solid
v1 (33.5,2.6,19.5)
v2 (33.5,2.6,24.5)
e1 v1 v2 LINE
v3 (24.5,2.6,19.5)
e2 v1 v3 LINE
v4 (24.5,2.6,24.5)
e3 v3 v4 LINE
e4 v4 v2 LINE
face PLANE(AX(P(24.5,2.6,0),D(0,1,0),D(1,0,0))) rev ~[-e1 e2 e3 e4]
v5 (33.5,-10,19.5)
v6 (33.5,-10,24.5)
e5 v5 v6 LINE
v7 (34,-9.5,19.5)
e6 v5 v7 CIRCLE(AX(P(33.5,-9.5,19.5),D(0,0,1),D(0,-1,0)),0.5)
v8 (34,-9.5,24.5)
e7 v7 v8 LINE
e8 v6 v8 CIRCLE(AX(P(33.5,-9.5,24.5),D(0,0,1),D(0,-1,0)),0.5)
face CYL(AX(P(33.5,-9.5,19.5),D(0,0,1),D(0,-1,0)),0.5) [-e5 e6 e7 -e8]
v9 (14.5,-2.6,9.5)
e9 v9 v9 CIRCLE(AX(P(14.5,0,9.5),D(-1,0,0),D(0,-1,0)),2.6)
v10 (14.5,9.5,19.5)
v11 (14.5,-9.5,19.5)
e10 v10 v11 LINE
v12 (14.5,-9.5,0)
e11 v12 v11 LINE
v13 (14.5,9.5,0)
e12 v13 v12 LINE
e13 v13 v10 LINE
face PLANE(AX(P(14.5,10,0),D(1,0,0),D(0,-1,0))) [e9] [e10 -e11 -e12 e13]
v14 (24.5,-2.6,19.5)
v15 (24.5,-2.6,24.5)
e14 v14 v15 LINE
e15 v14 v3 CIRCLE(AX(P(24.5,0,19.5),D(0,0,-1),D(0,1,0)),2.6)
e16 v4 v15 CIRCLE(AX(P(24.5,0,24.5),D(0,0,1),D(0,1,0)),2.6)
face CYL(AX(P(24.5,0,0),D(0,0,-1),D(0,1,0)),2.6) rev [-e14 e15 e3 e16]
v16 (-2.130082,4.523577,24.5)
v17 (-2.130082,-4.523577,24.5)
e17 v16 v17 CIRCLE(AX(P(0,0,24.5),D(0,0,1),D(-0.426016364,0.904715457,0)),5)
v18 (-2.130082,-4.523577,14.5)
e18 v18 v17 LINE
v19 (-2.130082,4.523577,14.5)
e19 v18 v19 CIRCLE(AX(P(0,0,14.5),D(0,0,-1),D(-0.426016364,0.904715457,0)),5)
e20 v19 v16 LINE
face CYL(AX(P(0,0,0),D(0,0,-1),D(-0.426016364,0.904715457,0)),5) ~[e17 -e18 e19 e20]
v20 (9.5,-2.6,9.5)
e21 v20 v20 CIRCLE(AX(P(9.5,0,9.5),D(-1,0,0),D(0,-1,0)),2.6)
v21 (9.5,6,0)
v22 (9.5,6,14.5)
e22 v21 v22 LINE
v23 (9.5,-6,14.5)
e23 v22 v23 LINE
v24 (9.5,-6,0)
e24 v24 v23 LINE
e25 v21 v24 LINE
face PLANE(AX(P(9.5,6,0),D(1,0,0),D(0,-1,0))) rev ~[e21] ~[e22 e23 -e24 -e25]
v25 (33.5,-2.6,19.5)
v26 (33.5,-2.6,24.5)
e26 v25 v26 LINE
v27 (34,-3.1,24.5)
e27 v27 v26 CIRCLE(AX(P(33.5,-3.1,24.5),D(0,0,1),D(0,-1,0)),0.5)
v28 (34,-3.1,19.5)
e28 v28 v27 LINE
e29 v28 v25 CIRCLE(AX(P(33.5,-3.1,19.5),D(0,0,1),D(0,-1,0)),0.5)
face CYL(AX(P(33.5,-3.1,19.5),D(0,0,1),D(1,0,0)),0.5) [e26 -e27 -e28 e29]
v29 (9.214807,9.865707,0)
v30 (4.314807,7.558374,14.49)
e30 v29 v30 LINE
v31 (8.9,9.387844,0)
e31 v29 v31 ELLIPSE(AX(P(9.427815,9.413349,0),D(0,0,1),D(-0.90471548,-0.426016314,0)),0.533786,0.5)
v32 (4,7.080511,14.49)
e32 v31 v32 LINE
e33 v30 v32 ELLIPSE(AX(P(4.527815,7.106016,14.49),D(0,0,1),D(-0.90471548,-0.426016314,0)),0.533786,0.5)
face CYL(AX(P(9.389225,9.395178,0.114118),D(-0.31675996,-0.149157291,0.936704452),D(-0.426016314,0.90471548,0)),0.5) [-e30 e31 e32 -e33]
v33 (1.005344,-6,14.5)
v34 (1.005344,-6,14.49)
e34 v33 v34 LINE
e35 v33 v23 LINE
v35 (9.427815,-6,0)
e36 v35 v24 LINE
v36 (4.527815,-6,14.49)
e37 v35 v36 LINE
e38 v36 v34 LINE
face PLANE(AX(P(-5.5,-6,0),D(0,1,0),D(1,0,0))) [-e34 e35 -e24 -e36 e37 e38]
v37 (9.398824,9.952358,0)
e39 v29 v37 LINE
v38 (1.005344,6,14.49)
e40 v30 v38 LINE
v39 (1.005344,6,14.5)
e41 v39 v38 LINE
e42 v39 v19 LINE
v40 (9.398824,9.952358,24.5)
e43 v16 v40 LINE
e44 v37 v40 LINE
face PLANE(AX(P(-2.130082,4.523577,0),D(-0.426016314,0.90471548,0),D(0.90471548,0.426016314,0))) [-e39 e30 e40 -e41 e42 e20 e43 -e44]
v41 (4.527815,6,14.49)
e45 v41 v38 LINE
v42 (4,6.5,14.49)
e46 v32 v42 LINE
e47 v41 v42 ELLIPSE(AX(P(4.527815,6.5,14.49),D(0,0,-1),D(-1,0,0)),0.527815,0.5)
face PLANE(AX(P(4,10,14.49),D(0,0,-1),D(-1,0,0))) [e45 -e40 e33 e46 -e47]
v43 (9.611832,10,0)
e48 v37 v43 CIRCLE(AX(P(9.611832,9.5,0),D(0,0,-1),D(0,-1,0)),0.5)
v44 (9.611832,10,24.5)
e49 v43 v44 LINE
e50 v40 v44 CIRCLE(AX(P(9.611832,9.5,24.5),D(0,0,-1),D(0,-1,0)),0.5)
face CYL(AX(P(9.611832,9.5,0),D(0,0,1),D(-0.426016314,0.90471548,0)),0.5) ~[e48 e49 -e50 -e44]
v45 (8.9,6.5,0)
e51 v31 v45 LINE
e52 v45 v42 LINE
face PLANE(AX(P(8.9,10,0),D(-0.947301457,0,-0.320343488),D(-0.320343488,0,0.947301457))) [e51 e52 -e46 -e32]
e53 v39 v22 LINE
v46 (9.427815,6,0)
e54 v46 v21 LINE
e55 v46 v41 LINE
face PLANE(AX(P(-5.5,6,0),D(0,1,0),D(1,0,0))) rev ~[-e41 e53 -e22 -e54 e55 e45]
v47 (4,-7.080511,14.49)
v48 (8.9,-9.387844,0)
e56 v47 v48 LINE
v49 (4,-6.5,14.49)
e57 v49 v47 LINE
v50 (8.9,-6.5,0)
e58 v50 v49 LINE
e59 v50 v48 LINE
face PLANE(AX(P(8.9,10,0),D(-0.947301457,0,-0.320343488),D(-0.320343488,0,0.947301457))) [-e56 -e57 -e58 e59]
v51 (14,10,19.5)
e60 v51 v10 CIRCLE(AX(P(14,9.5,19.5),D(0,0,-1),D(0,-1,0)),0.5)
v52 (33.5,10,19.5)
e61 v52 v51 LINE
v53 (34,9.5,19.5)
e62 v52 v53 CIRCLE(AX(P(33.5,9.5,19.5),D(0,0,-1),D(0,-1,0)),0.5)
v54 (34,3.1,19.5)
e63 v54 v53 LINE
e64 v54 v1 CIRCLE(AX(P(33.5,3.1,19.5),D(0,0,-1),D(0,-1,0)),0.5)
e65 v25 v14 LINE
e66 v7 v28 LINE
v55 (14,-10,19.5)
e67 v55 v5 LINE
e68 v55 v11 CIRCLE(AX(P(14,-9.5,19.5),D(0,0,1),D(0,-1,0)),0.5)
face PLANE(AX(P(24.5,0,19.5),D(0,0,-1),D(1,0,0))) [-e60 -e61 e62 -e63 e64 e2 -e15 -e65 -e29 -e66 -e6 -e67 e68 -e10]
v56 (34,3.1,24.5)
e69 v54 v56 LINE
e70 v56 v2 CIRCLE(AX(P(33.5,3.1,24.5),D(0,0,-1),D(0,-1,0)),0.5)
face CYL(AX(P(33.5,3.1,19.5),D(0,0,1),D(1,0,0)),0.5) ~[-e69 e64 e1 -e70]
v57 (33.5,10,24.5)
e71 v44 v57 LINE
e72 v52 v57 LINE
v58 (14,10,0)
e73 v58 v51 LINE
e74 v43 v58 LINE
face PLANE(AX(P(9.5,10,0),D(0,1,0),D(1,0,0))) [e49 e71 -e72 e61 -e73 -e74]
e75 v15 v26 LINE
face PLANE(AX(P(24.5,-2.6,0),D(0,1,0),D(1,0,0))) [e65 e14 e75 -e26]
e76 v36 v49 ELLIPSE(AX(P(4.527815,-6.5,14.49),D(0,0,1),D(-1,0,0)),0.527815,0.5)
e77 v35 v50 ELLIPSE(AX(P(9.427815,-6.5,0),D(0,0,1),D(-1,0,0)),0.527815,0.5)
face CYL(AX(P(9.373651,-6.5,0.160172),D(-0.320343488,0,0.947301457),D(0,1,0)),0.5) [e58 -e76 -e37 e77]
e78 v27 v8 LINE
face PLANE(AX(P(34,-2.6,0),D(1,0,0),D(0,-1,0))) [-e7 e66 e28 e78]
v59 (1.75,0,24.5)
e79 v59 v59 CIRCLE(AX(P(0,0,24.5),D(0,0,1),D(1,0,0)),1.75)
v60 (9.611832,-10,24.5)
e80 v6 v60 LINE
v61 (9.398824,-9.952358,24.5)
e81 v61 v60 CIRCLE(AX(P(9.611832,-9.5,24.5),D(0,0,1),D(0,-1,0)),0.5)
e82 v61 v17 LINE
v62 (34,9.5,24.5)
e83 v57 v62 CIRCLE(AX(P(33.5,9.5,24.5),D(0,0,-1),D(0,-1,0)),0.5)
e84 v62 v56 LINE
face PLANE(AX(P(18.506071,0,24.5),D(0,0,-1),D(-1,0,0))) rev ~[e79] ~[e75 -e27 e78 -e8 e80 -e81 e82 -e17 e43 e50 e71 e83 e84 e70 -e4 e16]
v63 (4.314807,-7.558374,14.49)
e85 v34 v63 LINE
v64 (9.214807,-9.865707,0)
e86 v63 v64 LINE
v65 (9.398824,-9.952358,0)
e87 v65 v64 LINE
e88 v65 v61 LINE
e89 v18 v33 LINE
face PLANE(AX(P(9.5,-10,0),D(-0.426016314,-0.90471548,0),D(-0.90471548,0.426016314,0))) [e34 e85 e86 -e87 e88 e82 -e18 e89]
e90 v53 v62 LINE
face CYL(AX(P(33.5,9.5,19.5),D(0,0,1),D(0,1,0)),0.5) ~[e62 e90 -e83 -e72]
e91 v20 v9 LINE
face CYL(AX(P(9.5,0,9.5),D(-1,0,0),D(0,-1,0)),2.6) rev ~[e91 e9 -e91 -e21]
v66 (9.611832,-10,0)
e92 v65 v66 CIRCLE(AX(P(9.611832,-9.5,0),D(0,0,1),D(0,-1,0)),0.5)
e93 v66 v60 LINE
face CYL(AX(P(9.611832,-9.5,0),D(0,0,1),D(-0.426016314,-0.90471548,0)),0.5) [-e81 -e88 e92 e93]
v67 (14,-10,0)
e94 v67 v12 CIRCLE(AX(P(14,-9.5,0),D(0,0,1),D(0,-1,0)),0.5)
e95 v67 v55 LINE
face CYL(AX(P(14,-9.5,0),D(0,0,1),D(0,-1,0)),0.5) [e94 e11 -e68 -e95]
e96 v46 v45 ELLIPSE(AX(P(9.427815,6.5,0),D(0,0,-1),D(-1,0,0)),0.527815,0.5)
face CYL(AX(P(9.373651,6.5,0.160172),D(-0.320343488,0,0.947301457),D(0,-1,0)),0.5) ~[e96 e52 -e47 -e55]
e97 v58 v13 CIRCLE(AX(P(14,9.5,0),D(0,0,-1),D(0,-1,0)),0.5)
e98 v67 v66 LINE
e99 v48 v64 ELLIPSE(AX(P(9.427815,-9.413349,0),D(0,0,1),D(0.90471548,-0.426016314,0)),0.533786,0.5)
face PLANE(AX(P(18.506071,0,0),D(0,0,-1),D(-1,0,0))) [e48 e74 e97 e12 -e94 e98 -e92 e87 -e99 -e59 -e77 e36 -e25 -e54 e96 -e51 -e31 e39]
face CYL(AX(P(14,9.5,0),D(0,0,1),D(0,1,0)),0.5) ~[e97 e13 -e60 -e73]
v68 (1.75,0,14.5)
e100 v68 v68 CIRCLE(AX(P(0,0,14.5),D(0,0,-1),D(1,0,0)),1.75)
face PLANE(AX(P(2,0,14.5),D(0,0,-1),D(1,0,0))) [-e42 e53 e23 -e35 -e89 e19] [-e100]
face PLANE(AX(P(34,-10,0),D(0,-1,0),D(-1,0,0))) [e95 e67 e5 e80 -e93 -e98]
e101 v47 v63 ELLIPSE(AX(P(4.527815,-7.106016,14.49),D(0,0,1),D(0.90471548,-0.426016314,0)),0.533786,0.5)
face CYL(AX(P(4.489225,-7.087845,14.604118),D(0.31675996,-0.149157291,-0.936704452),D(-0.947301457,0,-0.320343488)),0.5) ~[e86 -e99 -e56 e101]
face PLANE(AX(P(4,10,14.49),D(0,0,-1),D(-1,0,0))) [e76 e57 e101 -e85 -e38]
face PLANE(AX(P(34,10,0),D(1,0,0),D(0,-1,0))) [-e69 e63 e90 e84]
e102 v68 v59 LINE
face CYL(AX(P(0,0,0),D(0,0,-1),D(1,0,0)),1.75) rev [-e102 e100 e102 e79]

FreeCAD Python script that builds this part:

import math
import FreeCAD as App
import Part
import Sketcher
from FreeCAD import Vector
Q = App.Units.Quantity


def edges_at(feature, points):
    """Names of the edges that pass closest to the given points."""
    edges = feature.Shape.Edges
    near = lambda p: min(range(len(edges)), key=lambda i: edges[i].distToShape(Part.Vertex(*p))[0])
    return sorted({f"Edge{near(p) + 1}" for p in points})

doc = App.newDocument("Part")
params = doc.addObject("Spreadsheet::Sheet", "Params")
for row, (alias, value) in enumerate([
    ("sketch1_radius", "5 mm"),
    ("sketch1_diameter", "3.5 mm"),
    ("sketch1_radius2", "2.6 mm"),
    ("sketch1_width", "24.5 mm"),
    ("sketch1_width2", "9.5 mm"),
    ("pad1_length", "24.5 mm"),
    ("sketch2_width", "15 mm"),
    ("sketch2_height", "12 mm"),
    ("pocket1_length", "14.5 mm"),
    ("sketch3_width", "20 mm"),
    ("pocket2_length", "19.5 mm"),
    ("sketch4_diameter", "5.2 mm"),
    ("sketch5_width", "4 mm"),
    ("sketch5_width2", "8.9 mm"),
    ("sketch5_height", "14.49 mm"),
    ("fillet_radius", "0.5 mm"),
], start=1):
    params.set(f"A{row}", alias)
    params.set(f"B{row}", "=" + value)
    params.setAlias(f"B{row}", alias)

body = doc.addObject("PartDesign::Body", "Body")

# Sketch on XY plane
sketch1 = body.newObject("Sketcher::SketchObject", "Sketch")
sketch1.AttachmentSupport = (doc.getObject("XY_Plane"), [""])
sketch1.MapMode = "FlatFace"
sketch1.addGeometry([
    Part.LineSegment(Vector(9.5, 10, 0), Vector(-2.1, 4.5, 0)),  # 0
    Part.ArcOfCircle(Part.Circle(Vector(0, 0, 0), Vector(0, 0, 1), 5), math.radians(115), math.radians(245)),  # 1
    Part.LineSegment(Vector(-2.1, -4.5, 0), Vector(9.5, -10, 0)),  # 2
    Part.LineSegment(Vector(9.5, -10, 0), Vector(34, -10, 0)),  # 3
    Part.LineSegment(Vector(34, -10, 0), Vector(34, -2.6, 0)),  # 4
    Part.LineSegment(Vector(34, -2.6, 0), Vector(24.5, -2.6, 0)),  # 5
    Part.ArcOfCircle(Part.Circle(Vector(24.5, 0, 0), Vector(0, 0, 1), 2.6), math.radians(90), math.radians(270)),  # 6
    Part.LineSegment(Vector(24.5, 2.6, 0), Vector(34, 2.6, 0)),  # 7
    Part.LineSegment(Vector(34, 2.6, 0), Vector(34, 10, 0)),  # 8
    Part.LineSegment(Vector(34, 10, 0), Vector(9.5, 10, 0)),  # 9
    Part.Circle(Vector(0, 0, 0), Vector(0, 0, 1), 1.8),  # 10
], False)
sketch1.addConstraint([
    Sketcher.Constraint("Tangent", 0, 2, 1, 1),
    Sketcher.Constraint("Tangent", 1, 2, 2, 1),
    Sketcher.Constraint("Coincident", 2, 2, 3, 1),
    Sketcher.Constraint("Coincident", 3, 2, 4, 1),
    Sketcher.Constraint("Coincident", 4, 2, 5, 1),
    Sketcher.Constraint("Tangent", 5, 2, 6, 2),
    Sketcher.Constraint("Tangent", 6, 1, 7, 1),
    Sketcher.Constraint("Coincident", 7, 2, 8, 1),
    Sketcher.Constraint("Coincident", 8, 2, 9, 1),
    Sketcher.Constraint("Coincident", 9, 2, 0, 1),
    Sketcher.Constraint("Horizontal", 3),
    Sketcher.Constraint("Vertical", 4),
    Sketcher.Constraint("Horizontal", 5),
    Sketcher.Constraint("Horizontal", 7),
    Sketcher.Constraint("Vertical", 8),
    Sketcher.Constraint("Horizontal", 9),
    Sketcher.Constraint("Coincident", 1, 3, -1, 1),
    Sketcher.Constraint("Coincident", 10, 3, -1, 1),
    Sketcher.Constraint("Symmetric", 4, 2, 7, 2, -1),
    Sketcher.Constraint("Symmetric", 2, 2, 9, 2, -1),
    Sketcher.Constraint("Radius", 1, Q("5 mm")),
    Sketcher.Constraint("Diameter", 10, Q("3.5 mm")),
    Sketcher.Constraint("Radius", 6, Q("2.6 mm")),
    Sketcher.Constraint("DistanceX", 3, 1, 3, 2, Q("24.5 mm")),
    Sketcher.Constraint("DistanceX", 5, 2, 5, 1, Q("9.5 mm")),
    Sketcher.Constraint("DistanceY", 4, 1, 4, 2, Q("7.4 mm")),
    Sketcher.Constraint("DistanceX", -1, 1, 3, 2, Q("34 mm")),
])
sketch1.setExpression("Constraints[20]", "Params.sketch1_radius")
sketch1.setExpression("Constraints[21]", "Params.sketch1_diameter")
sketch1.setExpression("Constraints[22]", "Params.sketch1_radius2")
sketch1.setExpression("Constraints[23]", "Params.sketch1_width")
sketch1.setExpression("Constraints[24]", "Params.sketch1_width2")
pad1 = body.newObject("PartDesign::Pad", "Pad")
pad1.Profile = sketch1
pad1.setExpression("Length", "Params.pad1_length")

# Sketch on XY plane
sketch2 = body.newObject("Sketcher::SketchObject", "Sketch001")
sketch2.AttachmentSupport = (doc.getObject("XY_Plane"), [""])
sketch2.MapMode = "FlatFace"
sketch2.addGeometry([
    Part.LineSegment(Vector(-6, -6, 0), Vector(-6, 6, 0)),
    Part.LineSegment(Vector(-6, 6, 0), Vector(10, 6, 0)),
    Part.LineSegment(Vector(10, 6, 0), Vector(10, -6, 0)),
    Part.LineSegment(Vector(10, -6, 0), Vector(-6, -6, 0)),
], False)
sketch2.addConstraint([
    Sketcher.Constraint("Coincident", 0, 2, 1, 1),
    Sketcher.Constraint("Coincident", 1, 2, 2, 1),
    Sketcher.Constraint("Coincident", 2, 2, 3, 1),
    Sketcher.Constraint("Coincident", 3, 2, 0, 1),
    Sketcher.Constraint("Vertical", 0),
    Sketcher.Constraint("Horizontal", 1),
    Sketcher.Constraint("Vertical", 2),
    Sketcher.Constraint("Horizontal", 3),
    Sketcher.Constraint("DistanceX", 1, 1, 1, 2, Q("15 mm")),
    Sketcher.Constraint("DistanceY", 0, 1, 0, 2, Q("12 mm")),
    Sketcher.Constraint("DistanceY", -1, 1, 0, 2, Q("6 mm")),
    Sketcher.Constraint("DistanceX", 0, 2, -1, 1, Q("5.5 mm")),
])
sketch2.setExpression("Constraints[8]", "Params.sketch2_width")
sketch2.setExpression("Constraints[9]", "Params.sketch2_height")
pocket1 = body.newObject("PartDesign::Pocket", "Pocket")
pocket1.Profile = sketch2
pocket1.setExpression("Length", "Params.pocket1_length")
pocket1.Reversed = True

# Sketch on XY plane
sketch3 = body.newObject("Sketcher::SketchObject", "Sketch002")
sketch3.AttachmentSupport = (doc.getObject("XY_Plane"), [""])
sketch3.MapMode = "FlatFace"
sketch3.addGeometry([
    Part.LineSegment(Vector(14, -10, 0), Vector(14, 10, 0)),
    Part.LineSegment(Vector(14, 10, 0), Vector(34, 10, 0)),
    Part.LineSegment(Vector(34, 10, 0), Vector(34, -10, 0)),
    Part.LineSegment(Vector(34, -10, 0), Vector(14, -10, 0)),
], False)
sketch3.addConstraint([
    Sketcher.Constraint("Coincident", 0, 2, 1, 1),
    Sketcher.Constraint("Coincident", 1, 2, 2, 1),
    Sketcher.Constraint("Coincident", 2, 2, 3, 1),
    Sketcher.Constraint("Coincident", 3, 2, 0, 1),
    Sketcher.Constraint("Vertical", 0),
    Sketcher.Constraint("Horizontal", 1),
    Sketcher.Constraint("Vertical", 2),
    Sketcher.Constraint("Horizontal", 3),
    Sketcher.Constraint("Equal", 3, 0),
    Sketcher.Constraint("DistanceX", 1, 1, 1, 2, Q("20 mm")),
    Sketcher.Constraint("DistanceY", -1, 1, 0, 2, Q("10 mm")),
    Sketcher.Constraint("DistanceX", -1, 1, 0, 2, Q("14.5 mm")),
])
sketch3.setExpression("Constraints[9]", "Params.sketch3_width")
pocket2 = body.newObject("PartDesign::Pocket", "Pocket001")
pocket2.Profile = sketch3
pocket2.setExpression("Length", "Params.pocket2_length")
pocket2.Reversed = True

# Sketch on YZ plane
sketch4 = body.newObject("Sketcher::SketchObject", "Sketch003")
sketch4.AttachmentSupport = (doc.getObject("YZ_Plane"), [""])
sketch4.MapMode = "FlatFace"
sketch4.AttachmentOffset = App.Placement(Vector(0, 0, 9.5), App.Rotation())
sketch4.addGeometry(Part.Circle(Vector(0, 9.5, 0), Vector(0, 0, 1), 2.6), False)
sketch4.addConstraint([
    Sketcher.Constraint("PointOnObject", 0, 3, -2),
    Sketcher.Constraint("Diameter", 0, Q("5.2 mm")),
    Sketcher.Constraint("DistanceY", -1, 1, 0, 3, Q("9.5 mm")),
])
sketch4.setExpression("Constraints[1]", "Params.sketch4_diameter")
pocket3 = body.newObject("PartDesign::Pocket", "Pocket002")
pocket3.Profile = sketch4
pocket3.Type = "ThroughAll"
pocket3.Reversed = True

# Sketch on XZ plane
sketch5 = body.newObject("Sketcher::SketchObject", "Sketch004")
sketch5.AttachmentSupport = (doc.getObject("XZ_Plane"), [""])
sketch5.MapMode = "FlatFace"
sketch5.AttachmentOffset = App.Placement(Vector(0, 0, -10), App.Rotation())
sketch5.addGeometry([
    Part.LineSegment(Vector(4, 14.5, 0), Vector(8.9, 0, 0)),
    Part.LineSegment(Vector(8.9, 0, 0), Vector(0, 0, 0)),
    Part.LineSegment(Vector(0, 0, 0), Vector(0, 14.5, 0)),
    Part.LineSegment(Vector(0, 14.5, 0), Vector(4, 14.5, 0)),
], False)
sketch5.addConstraint([
    Sketcher.Constraint("Coincident", 0, 2, 1, 1),
    Sketcher.Constraint("Coincident", 1, 2, 2, 1),
    Sketcher.Constraint("Coincident", 2, 2, 3, 1),
    Sketcher.Constraint("Coincident", 3, 2, 0, 1),
    Sketcher.Constraint("Horizontal", 1),
    Sketcher.Constraint("Vertical", 2),
    Sketcher.Constraint("Horizontal", 3),
    Sketcher.Constraint("Coincident", 1, 2, -1, 1),
    Sketcher.Constraint("DistanceX", 3, 1, 3, 2, Q("4 mm")),
    Sketcher.Constraint("DistanceX", 1, 2, 1, 1, Q("8.9 mm")),
    Sketcher.Constraint("DistanceY", 2, 1, 2, 2, Q("14.49 mm")),
])
sketch5.setExpression("Constraints[8]", "Params.sketch5_width")
sketch5.setExpression("Constraints[9]", "Params.sketch5_width2")
sketch5.setExpression("Constraints[10]", "Params.sketch5_height")
pocket4 = body.newObject("PartDesign::Pocket", "Pocket003")
pocket4.Profile = sketch5
pocket4.Type = "ThroughAll"
pocket4.Reversed = True
doc.recompute()

fillet = body.newObject("PartDesign::Fillet", "Fillet")
fillet.Base = (pocket4, edges_at(pocket4, [
    (6.45, -8.564, 7.245),
    (6.45, -6, 7.245),
    (6.45, 6, 7.245),
    (6.45, 8.564, 7.245),
    (14.5, -10, 9.75),
    (14.5, 10, 9.75),
    (34, -2.6, 22),
    (34, 2.6, 22),
    (9.5, -10, 12.25),
    (9.5, 10, 12.25),
    (34, -10, 22),
    (34, 10, 22),
]))
fillet.setExpression("Radius", "Params.fillet_radius")

doc.recompute()
